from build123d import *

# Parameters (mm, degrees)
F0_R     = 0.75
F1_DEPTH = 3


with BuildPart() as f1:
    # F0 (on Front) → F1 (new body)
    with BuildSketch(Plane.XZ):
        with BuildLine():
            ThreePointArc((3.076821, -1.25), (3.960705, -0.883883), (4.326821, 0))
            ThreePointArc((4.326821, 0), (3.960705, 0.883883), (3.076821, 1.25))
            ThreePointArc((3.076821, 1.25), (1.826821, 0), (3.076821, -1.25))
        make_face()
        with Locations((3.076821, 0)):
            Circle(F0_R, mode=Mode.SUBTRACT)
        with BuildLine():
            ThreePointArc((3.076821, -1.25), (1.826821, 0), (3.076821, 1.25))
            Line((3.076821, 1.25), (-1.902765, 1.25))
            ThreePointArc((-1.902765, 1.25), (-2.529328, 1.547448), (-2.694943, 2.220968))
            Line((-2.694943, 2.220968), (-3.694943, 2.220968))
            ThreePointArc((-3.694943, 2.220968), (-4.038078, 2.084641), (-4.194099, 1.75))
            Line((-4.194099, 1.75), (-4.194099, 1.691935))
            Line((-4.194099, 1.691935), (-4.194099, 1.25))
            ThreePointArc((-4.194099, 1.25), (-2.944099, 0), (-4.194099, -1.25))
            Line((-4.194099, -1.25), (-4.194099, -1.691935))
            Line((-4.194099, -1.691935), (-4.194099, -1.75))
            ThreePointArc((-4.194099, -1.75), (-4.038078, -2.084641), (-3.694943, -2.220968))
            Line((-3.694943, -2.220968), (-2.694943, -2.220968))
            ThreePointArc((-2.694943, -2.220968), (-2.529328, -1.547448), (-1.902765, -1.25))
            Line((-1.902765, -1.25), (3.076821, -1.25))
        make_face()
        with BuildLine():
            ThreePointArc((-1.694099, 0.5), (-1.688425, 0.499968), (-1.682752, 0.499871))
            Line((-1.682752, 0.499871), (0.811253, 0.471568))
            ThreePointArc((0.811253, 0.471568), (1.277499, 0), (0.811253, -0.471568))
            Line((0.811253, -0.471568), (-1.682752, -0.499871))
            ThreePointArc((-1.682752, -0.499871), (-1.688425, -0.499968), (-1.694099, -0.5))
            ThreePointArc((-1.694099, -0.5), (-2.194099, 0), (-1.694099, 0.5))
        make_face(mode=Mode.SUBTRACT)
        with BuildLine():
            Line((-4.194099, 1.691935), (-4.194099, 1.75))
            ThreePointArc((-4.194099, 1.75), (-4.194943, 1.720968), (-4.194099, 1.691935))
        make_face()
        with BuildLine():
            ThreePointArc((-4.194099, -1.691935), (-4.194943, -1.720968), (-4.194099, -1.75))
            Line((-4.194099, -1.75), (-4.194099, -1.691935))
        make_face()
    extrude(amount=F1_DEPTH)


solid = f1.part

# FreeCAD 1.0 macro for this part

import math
import FreeCAD as App
import Part
import Sketcher
from FreeCAD import Vector
Q = App.Units.Quantity

doc = App.newDocument("Part")
body = doc.addObject("PartDesign::Body", "Body")

# Sketch on XZ plane
sketch1 = body.newObject("Sketcher::SketchObject", "Sketch")
sketch1.AttachmentSupport = (doc.getObject("XZ_Plane"), [""])
sketch1.MapMode = "FlatFace"
sketch1.addGeometry(Part.ArcOfCircle(Part.Circle(Vector(3.077, 0, 0), Vector(0, 0, 1), 1.25), math.radians(-90), math.radians(0)), False)
sketch1.addGeometry(Part.ArcOfCircle(Part.Circle(Vector(3.077, 0, 0), Vector(0, 0, 1), 1.25), math.radians(0), math.radians(90)), False)
sketch1.addGeometry(Part.LineSegment(Vector(3.077, 1.25, 0), Vector(-1.903, 1.25, 0)), False)
sketch1.addGeometry(Part.ArcOfCircle(Part.Circle(Vector(-1.903, 2.059, 0), Vector(0, 0, 1), 0.809), math.radians(168), math.radians(270)), False)
sketch1.addGeometry(Part.LineSegment(Vector(-2.695, 2.221, 0), Vector(-3.695, 2.221, 0)), False)
sketch1.addGeometry(Part.ArcOfCircle(Part.Circle(Vector(-3.695, 1.721, 0), Vector(0, 0, 1), 0.5), math.radians(90), math.radians(177)), False)
sketch1.addGeometry(Part.ArcOfCircle(Part.Circle(Vector(-3.695, 1.721, 0), Vector(0, 0, 1), 0.5), math.radians(176.67), math.radians(183.33)), False)
sketch1.addGeometry(Part.LineSegment(Vector(-4.194, 1.692, 0), Vector(-4.194, 1.25, 0)), False)
sketch1.addGeometry(Part.ArcOfCircle(Part.Circle(Vector(-4.194, 0, 0), Vector(0, 0, 1), 1.25), math.radians(-90), math.radians(90)), False)
sketch1.addGeometry(Part.LineSegment(Vector(-4.194, -1.25, 0), Vector(-4.194, -1.692, 0)), False)
sketch1.addGeometry(Part.ArcOfCircle(Part.Circle(Vector(-3.695, -1.721, 0), Vector(0, 0, 1), 0.5), math.radians(176.67), math.radians(183.33)), False)
sketch1.addGeometry(Part.ArcOfCircle(Part.Circle(Vector(-3.695, -1.721, 0), Vector(0, 0, 1), 0.5), math.radians(-177), math.radians(-90)), False)
sketch1.addGeometry(Part.LineSegment(Vector(-3.695, -2.221, 0), Vector(-2.695, -2.221, 0)), False)
sketch1.addGeometry(Part.ArcOfCircle(Part.Circle(Vector(-1.903, -2.059, 0), Vector(0, 0, 1), 0.809), math.radians(90), math.radians(192)), False)
sketch1.addGeometry(Part.LineSegment(Vector(-1.903, -1.25, 0), Vector(3.077, -1.25, 0)), False)
sketch1.addGeometry(Part.ArcOfCircle(Part.Circle(Vector(-1.694, 0, 0), Vector(0, 0, 1), 0.5), math.radians(90), math.radians(270)), False)
sketch1.addGeometry(Part.ArcOfCircle(Part.Circle(Vector(-1.694, 0.005, 0), Vector(0, 0, 1), 0.495), math.radians(88.69), math.radians(90.01)), False)
sketch1.addGeometry(Part.LineSegment(Vector(-1.683, 0.5, 0), Vector(0.811, 0.472, 0)), False)
sketch1.addGeometry(Part.ArcOfCircle(Part.Circle(Vector(0.806, 0, 0), Vector(0, 0, 1), 0.472), math.radians(-89), math.radians(89)), False)
sketch1.addGeometry(Part.LineSegment(Vector(0.811, -0.472, 0), Vector(-1.683, -0.5, 0)), False)
sketch1.addGeometry(Part.ArcOfCircle(Part.Circle(Vector(-1.694, -0.005, 0), Vector(0, 0, 1), 0.495), math.radians(-90.01), math.radians(-88.69)), False)
sketch1.addGeometry(Part.Circle(Vector(3.077, 0, 0), Vector(0, 0, 1), 0.75), False)
sketch1.addConstraint(Sketcher.Constraint("Tangent", 0, 2, 1, 1))
sketch1.addConstraint(Sketcher.Constraint("Tangent", 1, 2, 2, 1))
sketch1.addConstraint(Sketcher.Constraint("Tangent", 2, 2, 3, 2))
sketch1.addConstraint(Sketcher.Constraint("Coincident", 3, 1, 4, 1))
sketch1.addConstraint(Sketcher.Constraint("Tangent", 4, 2, 5, 1))
sketch1.addConstraint(Sketcher.Constraint("Coincident", 5, 2, 6, 1))
sketch1.addConstraint(Sketcher.Constraint("Coincident", 6, 2, 7, 1))
sketch1.addConstraint(Sketcher.Constraint("Coincident", 7, 2, 8, 2))
sketch1.addConstraint(Sketcher.Constraint("Coincident", 8, 1, 9, 1))
sketch1.addConstraint(Sketcher.Constraint("Coincident", 9, 2, 10, 1))
sketch1.addConstraint(Sketcher.Constraint("Coincident", 10, 2, 11, 1))
sketch1.addConstraint(Sketcher.Constraint("Tangent", 11, 2, 12, 1))
sketch1.addConstraint(Sketcher.Constraint("Coincident", 12, 2, 13, 2))
sketch1.addConstraint(Sketcher.Constraint("Tangent", 13, 1, 14, 1))
sketch1.addConstraint(Sketcher.Constraint("Tangent", 14, 2, 0, 1))
sketch1.addConstraint(Sketcher.Constraint("Coincident", 15, 1, 16, 2))
sketch1.addConstraint(Sketcher.Constraint("Coincident", 16, 1, 17, 1))
sketch1.addConstraint(Sketcher.Constraint("Tangent", 17, 2, 18, 2))
sketch1.addConstraint(Sketcher.Constraint("Tangent", 18, 1, 19, 1))
sketch1.addConstraint(Sketcher.Constraint("Coincident", 19, 2, 20, 2))
sketch1.addConstraint(Sketcher.Constraint("Coincident", 20, 1, 15, 2))
sketch1.addConstraint(Sketcher.Constraint("Horizontal", 2))
sketch1.addConstraint(Sketcher.Constraint("Horizontal", 4))
sketch1.addConstraint(Sketcher.Constraint("Vertical", 7))
sketch1.addConstraint(Sketcher.Constraint("Vertical", 9))
sketch1.addConstraint(Sketcher.Constraint("Horizontal", 12))
sketch1.addConstraint(Sketcher.Constraint("Horizontal", 14))
sketch1.addConstraint(Sketcher.Constraint("Coincident", 21, 3, 0, 3))
sketch1.addConstraint(Sketcher.Constraint("Equal", 0, 1))
sketch1.addConstraint(Sketcher.Constraint("Equal", 1, 8))
sketch1.addConstraint(Sketcher.Constraint("Equal", 6, 10))
sketch1.addConstraint(Sketcher.Constraint("Equal", 5, 11))
sketch1.addConstraint(Sketcher.Constraint("Equal", 3, 13))
sketch1.addConstraint(Sketcher.Constraint("Equal", 11, 15))
sketch1.addConstraint(Sketcher.Constraint("Equal", 16, 20))
sketch1.addConstraint(Sketcher.Constraint("Symmetric", 6, 3, 10, 3, -1))
sketch1.addConstraint(Sketcher.Constraint("Symmetric", 3, 3, 13, 3, -1))
sketch1.addConstraint(Sketcher.Constraint("Symmetric", 16, 3, 20, 3, -1))
sketch1.addConstraint(Sketcher.Constraint("Symmetric", 7, 2, 8, 1, -1))
sketch1.addConstraint(Sketcher.Constraint("Symmetric", 17, 2, 18, 1, -1))
sketch1.addConstraint(Sketcher.Constraint("PointOnObject", 0, 2, -1))
sketch1.addConstraint(Sketcher.Constraint("Horizontal", 5, 3, 6, 3))
sketch1.addConstraint(Sketcher.Constraint("Horizontal", 10, 3, 11, 3))
sketch1.addConstraint(Sketcher.Constraint("Vertical", 8, 3, 5, 2))
sketch1.addConstraint(Sketcher.Constraint("Vertical", 5, 2, 6, 2))
sketch1.addConstraint(Sketcher.Constraint("Vertical", 9, 2, 10, 2))
sketch1.addConstraint(Sketcher.Constraint("Vertical", 15, 1, 20, 1))
sketch1.addConstraint(Sketcher.Constraint("Diameter", 21, Q("1.5 mm")))
sketch1.addConstraint(Sketcher.Constraint("Radius", 5, Q("0.5 mm")))
sketch1.addConstraint(Sketcher.Constraint("DistanceX", 4, 2, 4, 1, Q("1 mm")))
sketch1.addConstraint(Sketcher.Constraint("Radius", 0, Q("1.25 mm")))
sketch1.addConstraint(Sketcher.Constraint("Radius", 18, Q("0.471598 mm")))
sketch1.addConstraint(Sketcher.Constraint("DistanceX", 8, 3, 15, 3, Q("2.5 mm")))
sketch1.addConstraint(Sketcher.Constraint("DistanceX", 15, 3, 18, 3, Q("2.5 mm")))
sketch1.addConstraint(Sketcher.Constraint("DistanceY", 7, 2, 5, 2, Q("0.5 mm")))
sketch1.addConstraint(Sketcher.Constraint("Radius", 3, Q("0.808638 mm")))
sketch1.addConstraint(Sketcher.Constraint("Radius", 6, Q("0.499762 mm")))
sketch1.addConstraint(Sketcher.Constraint("Radius", 16, Q("0.495235 mm")))
sketch1.addConstraint(Sketcher.Constraint("DistanceX", 6, 3, 1, 3, Q("6.772002 mm")))
sketch1.addConstraint(Sketcher.Constraint("DistanceX", 8, 3, -1, 1, Q("4.194099 mm")))
sketch1.addConstraint(Sketcher.Constraint("DistanceX", 15, 1, -1, 1, Q("1.694099 mm")))
sketch1.addConstraint(Sketcher.Constraint("DistanceX", 2, 2, 2, 1, Q("4.979586 mm")))
sketch1.addConstraint(Sketcher.Constraint("DistanceX", 16, 1, -1, 1, Q("1.682752 mm")))
sketch1.addConstraint(Sketcher.Constraint("DistanceY", -1, 1, 16, 1, Q("0.499871 mm")))
pad1 = body.newObject("PartDesign::Pad", "Pad")
pad1.Profile = sketch1
pad1.Length = 3

doc.recompute()
